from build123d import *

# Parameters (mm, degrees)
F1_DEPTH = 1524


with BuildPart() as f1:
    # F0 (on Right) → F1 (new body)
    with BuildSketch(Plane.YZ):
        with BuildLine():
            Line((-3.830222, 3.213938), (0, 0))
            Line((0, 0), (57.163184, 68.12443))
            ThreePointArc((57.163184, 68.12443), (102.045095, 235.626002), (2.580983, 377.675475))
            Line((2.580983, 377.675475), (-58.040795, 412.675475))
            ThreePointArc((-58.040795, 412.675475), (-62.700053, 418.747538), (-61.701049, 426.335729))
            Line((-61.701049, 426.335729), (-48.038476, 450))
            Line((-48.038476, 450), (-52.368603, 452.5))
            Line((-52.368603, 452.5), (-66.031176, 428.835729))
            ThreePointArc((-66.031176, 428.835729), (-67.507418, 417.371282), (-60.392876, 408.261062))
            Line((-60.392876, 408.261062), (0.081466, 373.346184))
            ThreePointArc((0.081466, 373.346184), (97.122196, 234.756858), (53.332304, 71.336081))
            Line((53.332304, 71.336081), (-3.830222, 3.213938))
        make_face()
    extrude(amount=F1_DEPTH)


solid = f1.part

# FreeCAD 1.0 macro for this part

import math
import FreeCAD as App
import Part
import Sketcher
Q = App.Units.Quantity

doc = App.newDocument("Part")
body = doc.addObject("PartDesign::Body", "Body")

# Sketch on YZ plane
sketch1 = body.newObject("Sketcher::SketchObject", "Sketch")
sketch1.AttachmentSupport = (doc.getObject("YZ_Plane"), [""])
sketch1.MapMode = "FlatFace"
sketch1.addGeometry([
    Part.LineSegment(App.Vector(-3.830222, 3.213938, 0), App.Vector(0, 0, 0)),  # 0
    Part.LineSegment(App.Vector(0, 0, 0), App.Vector(57.163184, 68.12443, 0)),  # 1
    Part.ArcOfCircle(Part.Circle(App.Vector(-100, 200, 0), App.Vector(0, 0, 1), 205.161966), math.radians(-40), math.radians(60)),  # 2
    Part.LineSegment(App.Vector(2.580983, 377.675475, 0), App.Vector(-58.040795, 412.675475, 0)),  # 3
    Part.ArcOfCircle(Part.Circle(App.Vector(-53.040795, 421.335729, 0), App.Vector(0, 0, 1), 10), math.radians(150.000001), math.radians(239.999999)),  # 4
    Part.LineSegment(App.Vector(-61.701049, 426.335729, 0), App.Vector(-48.038476, 450, 0)),  # 5
    Part.LineSegment(App.Vector(-48.038476, 450, 0), App.Vector(-52.368603, 452.5, 0)),  # 6
    Part.LineSegment(App.Vector(-52.368603, 452.5, 0), App.Vector(-66.031176, 428.835729, 0)),  # 7
    Part.ArcOfCircle(Part.Circle(App.Vector(-53.040797, 421.335728, 0), App.Vector(0, 0, 1), 14.999999), math.radians(149.999994), math.radians(240.650304)),  # 8
    Part.LineSegment(App.Vector(-60.392876, 408.261062, 0), App.Vector(0.081466, 373.346184, 0)),  # 9
    Part.ArcOfCircle(Part.Circle(App.Vector(-100.000001, 200, 0), App.Vector(0, 0, 1), 200.162933), math.radians(-40.000622), math.radians(60)),  # 10
    Part.LineSegment(App.Vector(53.332304, 71.336081, 0), App.Vector(-3.830222, 3.213938, 0)),  # 11
], False)
sketch1.addConstraint([
    Sketcher.Constraint("Coincident", 0, 2, 1, 1),
    Sketcher.Constraint("Coincident", 1, 2, 2, 1),
    Sketcher.Constraint("Coincident", 2, 2, 3, 1),
    Sketcher.Constraint("Coincident", 3, 2, 4, 2),
    Sketcher.Constraint("Coincident", 4, 1, 5, 1),
    Sketcher.Constraint("Coincident", 5, 2, 6, 1),
    Sketcher.Constraint("Coincident", 6, 2, 7, 1),
    Sketcher.Constraint("Coincident", 7, 2, 8, 1),
    Sketcher.Constraint("Coincident", 8, 2, 9, 1),
    Sketcher.Constraint("Coincident", 9, 2, 10, 2),
    Sketcher.Constraint("Coincident", 10, 1, 11, 1),
    Sketcher.Constraint("Coincident", 11, 2, 0, 1),
    Sketcher.Constraint("Coincident", 0, 2, -1, 1),
    Sketcher.Constraint("Coincident", 8, 3, 4, 3),
    Sketcher.Constraint("Coincident", 10, 3, 2, 3),
    Sketcher.Constraint("Radius", 4, Q("10 mm")),
    Sketcher.Constraint("Radius", 8, Q("14.999999 mm")),
    Sketcher.Constraint("Distance", 0, Q("5 mm")),
    Sketcher.Constraint("Distance", 3, Q("70 mm")),
    Sketcher.Constraint("Distance", 6, Q("5 mm")),
    Sketcher.Constraint("DistanceX", 2, 3, -1, 1, Q("100 mm")),
    Sketcher.Constraint("DistanceY", -1, 1, 2, 3, Q("200 mm")),
    Sketcher.Constraint("DistanceY", -1, 1, 5, 2, Q("450 mm")),
    Sketcher.Constraint("DistanceX", 3, 2, 8, 3, Q("4.999998 mm")),
    Sketcher.Constraint("DistanceY", 2, 2, 3, 2, Q("35 mm")),
    Sketcher.Constraint("DistanceY", 8, 3, 4, 1, Q("5.000001 mm")),
    Sketcher.Constraint("DistanceY", -1, 1, 6, 2, Q("452.5 mm")),
    Sketcher.Constraint("DistanceY", 4, 1, 7, 2, Q("2.5 mm")),
    Sketcher.Constraint("Radius", 2, Q("205.161966 mm")),
    Sketcher.Constraint("Radius", 10, Q("200.162933 mm")),
    Sketcher.Constraint("DistanceY", 1, 2, 8, 3, Q("353.211298 mm")),
    Sketcher.Constraint("DistanceX", 2, 2, 1, 2, Q("54.582201 mm")),
    Sketcher.Constraint("DistanceX", 7, 2, 8, 2, Q("5.6383 mm")),
    Sketcher.Constraint("DistanceY", -1, 1, 10, 1, Q("71.336081 mm")),
    Sketcher.Constraint("DistanceX", 11, 2, -1, 1, Q("3.830222 mm")),
    Sketcher.Constraint("DistanceX", 4, 3, 5, 2, Q("5.002319 mm")),
    Sketcher.Constraint("DistanceY", 9, 2, 2, 2, Q("4.329291 mm")),
])
pad1 = body.newObject("PartDesign::Pad", "Pad")
pad1.Profile = sketch1
pad1.Length = 1524

doc.recompute()
